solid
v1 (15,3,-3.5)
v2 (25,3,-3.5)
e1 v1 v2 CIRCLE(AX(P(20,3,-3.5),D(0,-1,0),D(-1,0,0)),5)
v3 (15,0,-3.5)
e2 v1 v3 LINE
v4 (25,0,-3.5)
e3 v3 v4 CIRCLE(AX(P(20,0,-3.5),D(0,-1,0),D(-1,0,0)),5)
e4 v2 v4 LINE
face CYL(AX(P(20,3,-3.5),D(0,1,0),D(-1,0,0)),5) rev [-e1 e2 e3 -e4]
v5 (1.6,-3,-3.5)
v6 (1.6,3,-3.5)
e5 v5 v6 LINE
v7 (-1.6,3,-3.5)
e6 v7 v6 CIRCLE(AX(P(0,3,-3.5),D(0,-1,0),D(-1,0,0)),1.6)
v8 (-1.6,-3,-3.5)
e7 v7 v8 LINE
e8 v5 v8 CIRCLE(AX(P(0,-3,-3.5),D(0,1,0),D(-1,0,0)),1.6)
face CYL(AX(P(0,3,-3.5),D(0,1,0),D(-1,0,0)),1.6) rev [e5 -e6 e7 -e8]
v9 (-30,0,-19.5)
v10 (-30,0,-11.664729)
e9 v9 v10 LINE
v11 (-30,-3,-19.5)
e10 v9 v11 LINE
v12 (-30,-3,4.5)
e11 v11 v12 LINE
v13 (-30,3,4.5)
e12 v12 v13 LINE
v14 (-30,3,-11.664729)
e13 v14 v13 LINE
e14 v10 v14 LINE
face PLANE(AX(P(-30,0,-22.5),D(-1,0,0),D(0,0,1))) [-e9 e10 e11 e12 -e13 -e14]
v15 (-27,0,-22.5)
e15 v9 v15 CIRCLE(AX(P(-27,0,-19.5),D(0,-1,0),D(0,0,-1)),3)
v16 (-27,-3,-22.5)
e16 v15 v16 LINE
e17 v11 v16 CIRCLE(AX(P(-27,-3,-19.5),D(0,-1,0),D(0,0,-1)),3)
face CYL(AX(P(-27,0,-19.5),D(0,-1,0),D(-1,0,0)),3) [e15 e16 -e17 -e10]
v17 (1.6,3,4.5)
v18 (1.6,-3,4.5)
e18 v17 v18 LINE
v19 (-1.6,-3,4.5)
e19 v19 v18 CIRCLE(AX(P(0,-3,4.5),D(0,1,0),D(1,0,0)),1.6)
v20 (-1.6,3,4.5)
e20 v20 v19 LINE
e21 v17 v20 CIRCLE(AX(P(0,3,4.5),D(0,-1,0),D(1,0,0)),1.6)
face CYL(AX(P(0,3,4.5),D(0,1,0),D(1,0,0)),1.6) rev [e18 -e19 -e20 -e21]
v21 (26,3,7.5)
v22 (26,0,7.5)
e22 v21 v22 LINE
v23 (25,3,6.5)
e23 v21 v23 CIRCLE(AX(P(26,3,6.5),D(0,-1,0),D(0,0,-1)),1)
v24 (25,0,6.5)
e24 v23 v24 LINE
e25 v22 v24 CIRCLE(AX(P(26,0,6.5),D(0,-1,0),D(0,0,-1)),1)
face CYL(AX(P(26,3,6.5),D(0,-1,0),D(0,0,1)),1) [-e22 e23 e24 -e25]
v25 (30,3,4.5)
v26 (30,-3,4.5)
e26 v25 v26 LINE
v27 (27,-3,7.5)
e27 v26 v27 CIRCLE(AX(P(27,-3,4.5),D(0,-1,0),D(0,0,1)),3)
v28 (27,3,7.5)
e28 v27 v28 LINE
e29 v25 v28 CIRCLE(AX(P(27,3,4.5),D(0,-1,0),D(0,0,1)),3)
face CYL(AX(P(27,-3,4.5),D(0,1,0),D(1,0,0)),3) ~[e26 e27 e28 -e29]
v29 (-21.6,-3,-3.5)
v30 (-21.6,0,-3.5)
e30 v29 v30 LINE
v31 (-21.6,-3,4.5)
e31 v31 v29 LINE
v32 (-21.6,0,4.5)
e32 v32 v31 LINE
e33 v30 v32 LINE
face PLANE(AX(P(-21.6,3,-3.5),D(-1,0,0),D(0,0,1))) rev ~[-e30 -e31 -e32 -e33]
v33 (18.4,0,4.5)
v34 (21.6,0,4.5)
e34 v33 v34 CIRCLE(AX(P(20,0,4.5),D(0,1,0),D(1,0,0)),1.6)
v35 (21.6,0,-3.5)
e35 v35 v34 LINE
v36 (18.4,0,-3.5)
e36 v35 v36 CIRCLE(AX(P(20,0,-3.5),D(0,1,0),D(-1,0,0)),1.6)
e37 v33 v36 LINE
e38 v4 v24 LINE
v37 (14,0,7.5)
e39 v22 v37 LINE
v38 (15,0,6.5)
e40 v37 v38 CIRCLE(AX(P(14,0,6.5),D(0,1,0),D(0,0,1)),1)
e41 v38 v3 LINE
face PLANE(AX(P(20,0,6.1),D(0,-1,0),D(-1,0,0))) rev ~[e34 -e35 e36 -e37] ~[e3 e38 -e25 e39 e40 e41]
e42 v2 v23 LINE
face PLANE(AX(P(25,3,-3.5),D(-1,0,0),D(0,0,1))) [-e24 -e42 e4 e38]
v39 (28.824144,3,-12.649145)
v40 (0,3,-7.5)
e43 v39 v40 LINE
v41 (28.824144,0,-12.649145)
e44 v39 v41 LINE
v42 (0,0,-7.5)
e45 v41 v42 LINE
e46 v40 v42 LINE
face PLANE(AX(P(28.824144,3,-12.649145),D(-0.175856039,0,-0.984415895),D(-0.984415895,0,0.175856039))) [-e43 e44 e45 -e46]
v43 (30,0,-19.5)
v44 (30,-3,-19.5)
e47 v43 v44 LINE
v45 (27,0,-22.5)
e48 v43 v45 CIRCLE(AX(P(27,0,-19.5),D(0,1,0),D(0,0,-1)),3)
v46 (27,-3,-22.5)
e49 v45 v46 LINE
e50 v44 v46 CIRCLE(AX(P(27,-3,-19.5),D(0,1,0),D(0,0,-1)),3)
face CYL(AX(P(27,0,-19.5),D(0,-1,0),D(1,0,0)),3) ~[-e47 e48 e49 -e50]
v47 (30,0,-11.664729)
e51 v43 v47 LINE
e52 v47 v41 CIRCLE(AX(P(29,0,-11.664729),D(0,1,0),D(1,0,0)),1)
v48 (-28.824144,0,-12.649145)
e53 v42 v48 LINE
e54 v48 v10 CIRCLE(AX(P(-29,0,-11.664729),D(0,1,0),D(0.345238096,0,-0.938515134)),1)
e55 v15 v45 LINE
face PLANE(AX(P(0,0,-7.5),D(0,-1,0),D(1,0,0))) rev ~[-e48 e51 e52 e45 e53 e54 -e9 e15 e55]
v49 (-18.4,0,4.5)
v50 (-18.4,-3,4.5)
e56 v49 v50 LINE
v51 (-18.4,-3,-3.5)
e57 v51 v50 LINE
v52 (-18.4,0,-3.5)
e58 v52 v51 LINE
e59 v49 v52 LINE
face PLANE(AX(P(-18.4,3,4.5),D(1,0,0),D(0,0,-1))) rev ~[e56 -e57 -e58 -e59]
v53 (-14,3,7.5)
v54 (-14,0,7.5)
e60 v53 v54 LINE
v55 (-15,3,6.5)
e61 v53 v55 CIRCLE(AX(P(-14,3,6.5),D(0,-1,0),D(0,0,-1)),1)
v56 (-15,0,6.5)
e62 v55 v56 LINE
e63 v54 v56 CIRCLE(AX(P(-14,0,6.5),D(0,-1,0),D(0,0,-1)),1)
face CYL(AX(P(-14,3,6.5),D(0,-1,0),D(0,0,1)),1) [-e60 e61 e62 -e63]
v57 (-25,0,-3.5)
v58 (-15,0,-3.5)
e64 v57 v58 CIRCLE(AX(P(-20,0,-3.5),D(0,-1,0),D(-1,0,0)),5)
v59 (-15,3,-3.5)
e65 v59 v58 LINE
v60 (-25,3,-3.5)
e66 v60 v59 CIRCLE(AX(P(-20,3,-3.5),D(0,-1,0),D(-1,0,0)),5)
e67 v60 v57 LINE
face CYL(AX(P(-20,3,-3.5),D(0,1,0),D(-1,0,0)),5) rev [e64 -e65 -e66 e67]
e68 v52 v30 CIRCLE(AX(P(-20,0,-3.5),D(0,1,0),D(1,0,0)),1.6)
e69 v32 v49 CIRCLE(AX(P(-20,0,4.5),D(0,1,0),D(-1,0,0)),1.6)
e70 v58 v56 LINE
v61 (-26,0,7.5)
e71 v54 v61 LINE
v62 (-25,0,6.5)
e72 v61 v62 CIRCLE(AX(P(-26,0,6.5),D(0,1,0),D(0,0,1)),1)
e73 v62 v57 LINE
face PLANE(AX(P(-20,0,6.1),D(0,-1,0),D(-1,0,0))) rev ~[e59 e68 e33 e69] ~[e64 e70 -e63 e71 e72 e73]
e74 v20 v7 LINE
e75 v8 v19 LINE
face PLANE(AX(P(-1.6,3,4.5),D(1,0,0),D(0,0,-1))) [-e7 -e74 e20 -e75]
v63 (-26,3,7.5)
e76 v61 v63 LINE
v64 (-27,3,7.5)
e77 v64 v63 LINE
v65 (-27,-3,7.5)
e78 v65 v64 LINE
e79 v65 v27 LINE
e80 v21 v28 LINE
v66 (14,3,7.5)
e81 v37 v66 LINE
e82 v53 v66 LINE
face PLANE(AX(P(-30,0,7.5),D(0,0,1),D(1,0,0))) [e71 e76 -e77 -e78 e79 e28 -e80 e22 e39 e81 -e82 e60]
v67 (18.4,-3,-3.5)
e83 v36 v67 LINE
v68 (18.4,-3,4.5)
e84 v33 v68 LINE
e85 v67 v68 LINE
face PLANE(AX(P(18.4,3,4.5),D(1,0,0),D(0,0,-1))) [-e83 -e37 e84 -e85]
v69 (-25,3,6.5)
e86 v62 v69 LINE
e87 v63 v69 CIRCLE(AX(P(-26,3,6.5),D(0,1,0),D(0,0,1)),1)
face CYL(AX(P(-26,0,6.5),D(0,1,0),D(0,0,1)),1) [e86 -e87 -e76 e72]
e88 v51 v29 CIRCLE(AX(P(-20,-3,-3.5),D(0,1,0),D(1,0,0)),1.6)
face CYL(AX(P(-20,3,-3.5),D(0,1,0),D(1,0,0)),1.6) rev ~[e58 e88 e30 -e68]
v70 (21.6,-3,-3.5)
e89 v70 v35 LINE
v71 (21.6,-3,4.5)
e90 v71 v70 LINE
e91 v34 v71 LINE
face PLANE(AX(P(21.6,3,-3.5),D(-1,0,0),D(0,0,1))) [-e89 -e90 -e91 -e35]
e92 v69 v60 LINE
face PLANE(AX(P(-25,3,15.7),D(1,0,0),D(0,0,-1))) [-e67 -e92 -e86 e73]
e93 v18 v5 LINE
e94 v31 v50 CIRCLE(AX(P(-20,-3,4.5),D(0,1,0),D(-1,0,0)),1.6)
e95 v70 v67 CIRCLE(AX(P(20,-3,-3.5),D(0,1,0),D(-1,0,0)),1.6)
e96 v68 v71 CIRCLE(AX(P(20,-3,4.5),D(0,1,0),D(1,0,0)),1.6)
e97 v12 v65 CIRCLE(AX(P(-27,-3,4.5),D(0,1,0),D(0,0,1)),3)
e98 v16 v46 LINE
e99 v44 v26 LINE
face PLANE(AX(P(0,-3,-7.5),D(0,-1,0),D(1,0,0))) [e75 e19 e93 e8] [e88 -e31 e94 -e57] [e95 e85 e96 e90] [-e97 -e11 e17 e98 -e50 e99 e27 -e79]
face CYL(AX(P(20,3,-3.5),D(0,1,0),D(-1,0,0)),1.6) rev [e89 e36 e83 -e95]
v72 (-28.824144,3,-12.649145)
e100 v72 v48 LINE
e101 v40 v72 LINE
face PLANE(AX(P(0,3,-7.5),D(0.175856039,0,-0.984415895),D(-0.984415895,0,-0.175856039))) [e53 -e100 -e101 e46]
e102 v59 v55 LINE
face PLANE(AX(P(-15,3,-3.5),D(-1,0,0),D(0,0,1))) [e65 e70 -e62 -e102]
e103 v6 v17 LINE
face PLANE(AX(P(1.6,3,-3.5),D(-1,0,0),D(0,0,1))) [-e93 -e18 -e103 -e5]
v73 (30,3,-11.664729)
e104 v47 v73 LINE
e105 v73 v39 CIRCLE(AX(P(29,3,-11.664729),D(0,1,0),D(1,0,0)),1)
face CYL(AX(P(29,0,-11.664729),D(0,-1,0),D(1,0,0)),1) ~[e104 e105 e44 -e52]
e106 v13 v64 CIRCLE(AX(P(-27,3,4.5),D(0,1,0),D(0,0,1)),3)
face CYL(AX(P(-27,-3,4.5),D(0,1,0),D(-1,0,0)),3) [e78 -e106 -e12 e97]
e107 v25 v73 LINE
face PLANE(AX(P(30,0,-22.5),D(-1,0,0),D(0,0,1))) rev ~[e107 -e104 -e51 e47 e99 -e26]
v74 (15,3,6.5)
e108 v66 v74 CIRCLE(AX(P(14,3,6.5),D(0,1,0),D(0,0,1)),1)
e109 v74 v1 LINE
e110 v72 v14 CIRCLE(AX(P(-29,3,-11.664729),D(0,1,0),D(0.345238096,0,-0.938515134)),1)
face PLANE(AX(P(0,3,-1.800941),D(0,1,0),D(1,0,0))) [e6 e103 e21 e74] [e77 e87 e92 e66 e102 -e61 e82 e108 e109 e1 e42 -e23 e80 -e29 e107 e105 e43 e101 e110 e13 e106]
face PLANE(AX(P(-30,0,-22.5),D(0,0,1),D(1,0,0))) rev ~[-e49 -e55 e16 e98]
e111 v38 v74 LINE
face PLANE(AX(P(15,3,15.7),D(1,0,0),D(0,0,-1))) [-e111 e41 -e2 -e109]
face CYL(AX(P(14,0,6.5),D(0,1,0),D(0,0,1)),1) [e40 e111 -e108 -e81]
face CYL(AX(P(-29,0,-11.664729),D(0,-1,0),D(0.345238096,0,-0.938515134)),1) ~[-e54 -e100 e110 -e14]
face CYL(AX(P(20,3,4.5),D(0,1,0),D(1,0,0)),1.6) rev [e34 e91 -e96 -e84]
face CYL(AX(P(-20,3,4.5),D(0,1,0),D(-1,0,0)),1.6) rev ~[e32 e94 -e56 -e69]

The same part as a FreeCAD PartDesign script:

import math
import FreeCAD as App
import Part
import Sketcher
from FreeCAD import Vector
Q = App.Units.Quantity


def edges_at(feature, points):
    """Names of the edges that pass closest to the given points."""
    edges = feature.Shape.Edges
    near = lambda p: min(range(len(edges)), key=lambda i: edges[i].distToShape(Part.Vertex(*p))[0])
    return sorted({f"Edge{near(p) + 1}" for p in points})


def add_polygon(sketch, points):
    """Adds a closed chain of lines whose ends are joined by coincident constraints."""
    first, n = sketch.GeometryCount, len(points)
    for a, b in zip(points, points[1:] + points[:1]):
        sketch.addGeometry(Part.LineSegment(App.Vector(*a, 0), App.Vector(*b, 0)), False)
    for i in range(n):
        sketch.addConstraint(Sketcher.Constraint("Coincident", first + i, 2, first + (i + 1) % n, 1))

doc = App.newDocument("Part")
body = doc.addObject("PartDesign::Body", "Body")

sketch1 = doc.addObject("Sketcher::SketchObject", "Sketch")
body.addObject(sketch1)
sketch1.AttachmentSupport = (doc.XZ_Plane, [""])
sketch1.MapMode = "FlatFace"
sketch1.addGeometry([
    Part.LineSegment(Vector(-30, 7.5, 0), Vector(30, 7.5, 0)),
    Part.LineSegment(Vector(30, 7.5, 0), Vector(30, -11.7, 0)),
    Part.ArcOfCircle(Part.Circle(Vector(29, -11.7, 0), Vector(0, 0, 1), 1), math.radians(-110), math.radians(0)),
    Part.ArcOfCircle(Part.Circle(Vector(0, -90.5, 0), Vector(0, 0, 1), 83), math.radians(70), math.radians(110)),
    Part.ArcOfCircle(Part.Circle(Vector(-29, -11.7, 0), Vector(0, 0, 1), 1), math.radians(180), math.radians(290)),
    Part.LineSegment(Vector(-30, -11.7, 0), Vector(-30, 7.5, 0)),
], False)
sketch1.addConstraint([
    Sketcher.Constraint("Coincident", 0, 2, 1, 1),
    Sketcher.Constraint("Tangent", 1, 2, 2, 2),
    Sketcher.Constraint("Tangent", 2, 1, 3, 1),
    Sketcher.Constraint("Tangent", 3, 2, 4, 2),
    Sketcher.Constraint("Tangent", 4, 1, 5, 1),
    Sketcher.Constraint("Coincident", 5, 2, 0, 1),
    Sketcher.Constraint("Horizontal", 0),
    Sketcher.Constraint("Vertical", 1),
    Sketcher.Constraint("Vertical", 5),
    Sketcher.Constraint("Equal", 2, 4),
    Sketcher.Constraint("Symmetric", 2, 3, 4, 3, -2),
    Sketcher.Constraint("Radius", 2, Q("1 mm")),
    Sketcher.Constraint("Radius", 3, Q("83 mm")),
    Sketcher.Constraint("DistanceX", 0, 1, 0, 2, Q("60 mm")),
    Sketcher.Constraint("DistanceY", 3, 3, 0, 2, Q("98 mm")),
    Sketcher.Constraint("DistanceY", 3, 3, -1, 1, Q("90.5 mm")),
])
pad1 = doc.addObject("PartDesign::Pad", "Pad")
body.addObject(pad1)
pad1.Profile = sketch1
pad1.Length = 3
pad1.Reversed = True

sketch2 = doc.addObject("Sketcher::SketchObject", "Sketch001")
body.addObject(sketch2)
sketch2.AttachmentSupport = (doc.XZ_Plane, [""])
sketch2.MapMode = "FlatFace"
add_polygon(sketch2, [(-30, 8), (-30, -22), (30, -22), (30, 8)])
sketch2.addConstraint([
    Sketcher.Constraint("Vertical", 0),
    Sketcher.Constraint("Horizontal", 1),
    Sketcher.Constraint("Vertical", 2),
    Sketcher.Constraint("Horizontal", 3),
    Sketcher.Constraint("DistanceX", 1, 1, 1, 2, Q("60 mm")),
    Sketcher.Constraint("DistanceY", 0, 2, 0, 1, Q("30 mm")),
    Sketcher.Constraint("DistanceX", 0, 2, -1, 1, Q("30 mm")),
    Sketcher.Constraint("DistanceY", 0, 2, -1, 1, Q("22.5 mm")),
])
pad2 = doc.addObject("PartDesign::Pad", "Pad001")
body.addObject(pad2)
pad2.Profile = sketch2
pad2.Length = 3
doc.recompute()

fillet = doc.addObject("PartDesign::Fillet", "Fillet")
body.addObject(fillet)
fillet.Base = (pad2, edges_at(pad2, [
    (30, -1.5, -22.5),
    (30, 0, 7.5),
    (-30, 0, 7.5),
    (-30, -1.5, -22.5),
]))
fillet.Radius = 3

sketch3 = doc.addObject("Sketcher::SketchObject", "Sketch002")
body.addObject(sketch3)
sketch3.AttachmentSupport = (doc.XZ_Plane, [""])
sketch3.MapMode = "FlatFace"
sketch3.AttachmentOffset = App.Placement(Vector(0, 0, -3), App.Rotation())
sketch3.addGeometry([
    Part.LineSegment(Vector(1.6, 4.5, 0), Vector(1.6, -3.5, 0)),
    Part.ArcOfCircle(Part.Circle(Vector(0, -3.5, 0), Vector(0, 0, 1), 1.6), math.radians(180), math.radians(360)),
    Part.LineSegment(Vector(-1.6, -3.5, 0), Vector(-1.6, 4.5, 0)),
    Part.ArcOfCircle(Part.Circle(Vector(0, 4.5, 0), Vector(0, 0, 1), 1.6), math.radians(0), math.radians(180)),
    Part.LineSegment(Vector(21.6, 4.5, 0), Vector(21.6, -3.5, 0)),
    Part.ArcOfCircle(Part.Circle(Vector(20, -3.5, 0), Vector(0, 0, 1), 1.6), math.radians(180), math.radians(360)),
    Part.LineSegment(Vector(18.4, -3.5, 0), Vector(18.4, 4.5, 0)),
    Part.ArcOfCircle(Part.Circle(Vector(20, 4.5, 0), Vector(0, 0, 1), 1.6), math.radians(0), math.radians(180)),
    Part.LineSegment(Vector(-21.6, -3.5, 0), Vector(-21.6, 4.5, 0)),
    Part.ArcOfCircle(Part.Circle(Vector(-20, 4.5, 0), Vector(0, 0, 1), 1.6), math.radians(0), math.radians(180)),
    Part.LineSegment(Vector(-18.4, 4.5, 0), Vector(-18.4, -3.5, 0)),
    Part.ArcOfCircle(Part.Circle(Vector(-20, -3.5, 0), Vector(0, 0, 1), 1.6), math.radians(180), math.radians(360)),
], False)
sketch3.addConstraint([
    Sketcher.Constraint("Tangent", 0, 2, 1, 2),
    Sketcher.Constraint("Tangent", 1, 1, 2, 1),
    Sketcher.Constraint("Tangent", 2, 2, 3, 2),
    Sketcher.Constraint("Tangent", 3, 1, 0, 1),
    Sketcher.Constraint("Tangent", 4, 2, 5, 2),
    Sketcher.Constraint("Tangent", 5, 1, 6, 1),
    Sketcher.Constraint("Tangent", 6, 2, 7, 2),
    Sketcher.Constraint("Tangent", 7, 1, 4, 1),
    Sketcher.Constraint("Tangent", 8, 2, 9, 2),
    Sketcher.Constraint("Tangent", 9, 1, 10, 1),
    Sketcher.Constraint("Tangent", 10, 2, 11, 2),
    Sketcher.Constraint("Tangent", 11, 1, 8, 1),
    Sketcher.Constraint("Vertical", 0),
    Sketcher.Constraint("Vertical", 2),
    Sketcher.Constraint("Vertical", 4),
    Sketcher.Constraint("Vertical", 6),
    Sketcher.Constraint("Vertical", 8),
    Sketcher.Constraint("Vertical", 10),
    Sketcher.Constraint("Equal", 3, 5),
    Sketcher.Constraint("Equal", 7, 9),
    Sketcher.Constraint("Symmetric", 7, 3, 9, 3, -2),
    Sketcher.Constraint("PointOnObject", 1, 3, -2),
    Sketcher.Constraint("Horizontal", 1, 3, 5, 3),
    Sketcher.Constraint("Horizontal", 3, 3, 7, 3),
    Sketcher.Constraint("Horizontal", 5, 3, 11, 3),
    Sketcher.Constraint("Radius", 1, Q("1.6 mm")),
    Sketcher.Constraint("DistanceY", 0, 2, 0, 1, Q("8 mm")),
    Sketcher.Constraint("DistanceX", -1, 1, 5, 3, Q("20 mm")),
    Sketcher.Constraint("DistanceY", 1, 3, -1, 1, Q("3.5 mm")),
])
pocket1 = doc.addObject("PartDesign::Pocket", "Pocket")
body.addObject(pocket1)
pocket1.Profile = sketch3
pocket1.Type = "ThroughAll"
pocket1.Reversed = True

sketch4 = doc.addObject("Sketcher::SketchObject", "Sketch003")
body.addObject(sketch4)
sketch4.AttachmentSupport = (doc.XZ_Plane, [""])
sketch4.MapMode = "FlatFace"
sketch4.AttachmentOffset = App.Placement(Vector(0, 0, -3), App.Rotation())
sketch4.addGeometry([
    Part.LineSegment(Vector(0, -7.5, 0), Vector(-28.8, -12.6, 0)),
    Part.ArcOfCircle(Part.Circle(Vector(-29, -11.7, 0), Vector(0, 0, 1), 1), math.radians(180), math.radians(280)),
    Part.LineSegment(Vector(-30, -11.7, 0), Vector(-30, 4.5, 0)),
    Part.ArcOfCircle(Part.Circle(Vector(-27, 4.5, 0), Vector(0, 0, 1), 3), math.radians(90), math.radians(180)),
    Part.LineSegment(Vector(-27, 7.5, 0), Vector(27, 7.5, 0)),
    Part.ArcOfCircle(Part.Circle(Vector(27, 4.5, 0), Vector(0, 0, 1), 3), math.radians(0), math.radians(90)),
    Part.LineSegment(Vector(30, 4.5, 0), Vector(30, -11.7, 0)),
    Part.ArcOfCircle(Part.Circle(Vector(29, -11.7, 0), Vector(0, 0, 1), 1), math.radians(-100), math.radians(0)),
    Part.LineSegment(Vector(28.8, -12.6, 0), Vector(0, -7.5, 0)),
    Part.LineSegment(Vector(-18.4, -3.5, 0), Vector(-18.4, 4.5, 0)),
    Part.ArcOfCircle(Part.Circle(Vector(-20, 4.5, 0), Vector(0, 0, 1), 1.6), math.radians(0), math.radians(180)),
    Part.LineSegment(Vector(-21.6, 4.5, 0), Vector(-21.6, -3.5, 0)),
    Part.ArcOfCircle(Part.Circle(Vector(-20, -3.5, 0), Vector(0, 0, 1), 1.6), math.radians(180), math.radians(360)),
    Part.LineSegment(Vector(1.6, -3.5, 0), Vector(1.6, 4.5, 0)),
    Part.ArcOfCircle(Part.Circle(Vector(0, 4.5, 0), Vector(0, 0, 1), 1.6), math.radians(0), math.radians(180)),
    Part.LineSegment(Vector(-1.6, 4.5, 0), Vector(-1.6, -3.5, 0)),
    Part.ArcOfCircle(Part.Circle(Vector(0, -3.5, 0), Vector(0, 0, 1), 1.6), math.radians(180), math.radians(360)),
    Part.LineSegment(Vector(21.6, -3.5, 0), Vector(21.6, 4.5, 0)),
    Part.ArcOfCircle(Part.Circle(Vector(20, 4.5, 0), Vector(0, 0, 1), 1.6), math.radians(0), math.radians(180)),
    Part.LineSegment(Vector(18.4, 4.5, 0), Vector(18.4, -3.5, 0)),
    Part.ArcOfCircle(Part.Circle(Vector(20, -3.5, 0), Vector(0, 0, 1), 1.6), math.radians(180), math.radians(360)),
], False)
sketch4.addConstraint([
    Sketcher.Constraint("Tangent", 0, 2, 1, 2),
    Sketcher.Constraint("Tangent", 1, 1, 2, 1),
    Sketcher.Constraint("Tangent", 2, 2, 3, 2),
    Sketcher.Constraint("Tangent", 3, 1, 4, 1),
    Sketcher.Constraint("Tangent", 4, 2, 5, 2),
    Sketcher.Constraint("Tangent", 5, 1, 6, 1),
    Sketcher.Constraint("Tangent", 6, 2, 7, 2),
    Sketcher.Constraint("Tangent", 7, 1, 8, 1),
    Sketcher.Constraint("Coincident", 8, 2, 0, 1),
    Sketcher.Constraint("Tangent", 9, 2, 10, 1),
    Sketcher.Constraint("Tangent", 10, 2, 11, 1),
    Sketcher.Constraint("Tangent", 11, 2, 12, 1),
    Sketcher.Constraint("Tangent", 12, 2, 9, 1),
    Sketcher.Constraint("Tangent", 13, 2, 14, 1),
    Sketcher.Constraint("Tangent", 14, 2, 15, 1),
    Sketcher.Constraint("Tangent", 15, 2, 16, 1),
    Sketcher.Constraint("Tangent", 16, 2, 13, 1),
    Sketcher.Constraint("Tangent", 17, 2, 18, 1),
    Sketcher.Constraint("Tangent", 18, 2, 19, 1),
    Sketcher.Constraint("Tangent", 19, 2, 20, 1),
    Sketcher.Constraint("Tangent", 20, 2, 17, 1),
    Sketcher.Constraint("Vertical", 2),
    Sketcher.Constraint("Horizontal", 4),
    Sketcher.Constraint("Vertical", 6),
    Sketcher.Constraint("Vertical", 9),
    Sketcher.Constraint("Vertical", 11),
    Sketcher.Constraint("Vertical", 13),
    Sketcher.Constraint("Vertical", 15),
    Sketcher.Constraint("Vertical", 17),
    Sketcher.Constraint("Vertical", 19),
    Sketcher.Constraint("Equal", 3, 5),
    Sketcher.Constraint("Equal", 1, 7),
    Sketcher.Constraint("Equal", 12, 14),
    Sketcher.Constraint("Equal", 16, 18),
    Sketcher.Constraint("Symmetric", 1, 3, 7, 3, -2),
    Sketcher.Constraint("Symmetric", 10, 3, 18, 3, -2),
    Sketcher.Constraint("PointOnObject", 14, 3, -2),
    Sketcher.Constraint("PointOnObject", 8, 2, -2),
    Sketcher.Constraint("Horizontal", 5, 3, 10, 3),
    Sketcher.Constraint("Horizontal", 10, 3, 14, 3),
    Sketcher.Constraint("Horizontal", 12, 3, 16, 3),
    Sketcher.Constraint("Horizontal", 16, 3, 20, 3),
    Sketcher.Constraint("Radius", 1, Q("1 mm")),
    Sketcher.Constraint("Radius", 3, Q("3 mm")),
    Sketcher.Constraint("Radius", 10, Q("1.6 mm")),
    Sketcher.Constraint("DistanceX", 4, 1, 4, 2, Q("54 mm")),
    Sketcher.Constraint("DistanceY", 9, 1, 9, 2, Q("8 mm")),
    Sketcher.Constraint("DistanceX", 10, 3, -1, 1, Q("20 mm")),
    Sketcher.Constraint("DistanceY", 8, 2, 16, 3, Q("4 mm")),
    Sketcher.Constraint("DistanceY", -1, 1, 3, 3, Q("4.5 mm")),
    Sketcher.Constraint("DistanceY", 2, 1, 2, 2, Q("16.164729 mm")),
])
pad3 = doc.addObject("PartDesign::Pad", "Pad002")
body.addObject(pad3)
pad3.Profile = sketch4
pad3.Length = 3

sketch5 = doc.addObject("Sketcher::SketchObject", "Sketch004")
body.addObject(sketch5)
sketch5.AttachmentSupport = (doc.XZ_Plane, [""])
sketch5.MapMode = "FlatFace"
sketch5.AttachmentOffset = App.Placement(Vector(0, 0, -3), App.Rotation())
sketch5.addGeometry([
    Part.LineSegment(Vector(-15, 16, 0), Vector(-15, -4, 0)),
    Part.ArcOfCircle(Part.Circle(Vector(-20, -4, 0), Vector(0, 0, 1), 5), math.radians(180), math.radians(360)),
    Part.LineSegment(Vector(-25, -4, 0), Vector(-25, 16, 0)),
    Part.ArcOfCircle(Part.Circle(Vector(-20, 16, 0), Vector(0, 0, 1), 5), math.radians(0), math.radians(180)),
    Part.LineSegment(Vector(25, 16, 0), Vector(25, -4, 0)),
    Part.ArcOfCircle(Part.Circle(Vector(20, -4, 0), Vector(0, 0, 1), 5), math.radians(180), math.radians(360)),
    Part.LineSegment(Vector(15, -4, 0), Vector(15, 16, 0)),
    Part.ArcOfCircle(Part.Circle(Vector(20, 16, 0), Vector(0, 0, 1), 5), math.radians(0), math.radians(180)),
], False)
sketch5.addConstraint([
    Sketcher.Constraint("Tangent", 0, 2, 1, 2),
    Sketcher.Constraint("Tangent", 1, 1, 2, 1),
    Sketcher.Constraint("Tangent", 2, 2, 3, 2),
    Sketcher.Constraint("Tangent", 3, 1, 0, 1),
    Sketcher.Constraint("Tangent", 4, 2, 5, 2),
    Sketcher.Constraint("Tangent", 5, 1, 6, 1),
    Sketcher.Constraint("Tangent", 6, 2, 7, 2),
    Sketcher.Constraint("Tangent", 7, 1, 4, 1),
    Sketcher.Constraint("Vertical", 0),
    Sketcher.Constraint("Vertical", 2),
    Sketcher.Constraint("Vertical", 4),
    Sketcher.Constraint("Vertical", 6),
    Sketcher.Constraint("Equal", 3, 5),
    Sketcher.Constraint("Symmetric", 1, 3, 5, 3, -2),
    Sketcher.Constraint("Horizontal", 3, 3, 7, 3),
    Sketcher.Constraint("Radius", 1, Q("5 mm")),
    Sketcher.Constraint("DistanceY", 0, 2, 0, 1, Q("19.2 mm")),
    Sketcher.Constraint("DistanceX", 1, 3, -1, 1, Q("20 mm")),
    Sketcher.Constraint("DistanceY", 1, 3, -1, 1, Q("3.5 mm")),
])
pocket2 = doc.addObject("PartDesign::Pocket", "Pocket001")
body.addObject(pocket2)
pocket2.Profile = sketch5
pocket2.Length = 3
pocket2.Reversed = True
doc.recompute()

fillet2 = doc.addObject("PartDesign::Fillet", "Fillet001")
body.addObject(fillet2)
fillet2.Base = (pocket2, edges_at(pocket2, [
    (-15, 1.5, 7.5),
    (-25, 1.5, 7.5),
    (25, 1.5, 7.5),
    (15, 1.5, 7.5),
]))
fillet2.Radius = 1

doc.recompute()
